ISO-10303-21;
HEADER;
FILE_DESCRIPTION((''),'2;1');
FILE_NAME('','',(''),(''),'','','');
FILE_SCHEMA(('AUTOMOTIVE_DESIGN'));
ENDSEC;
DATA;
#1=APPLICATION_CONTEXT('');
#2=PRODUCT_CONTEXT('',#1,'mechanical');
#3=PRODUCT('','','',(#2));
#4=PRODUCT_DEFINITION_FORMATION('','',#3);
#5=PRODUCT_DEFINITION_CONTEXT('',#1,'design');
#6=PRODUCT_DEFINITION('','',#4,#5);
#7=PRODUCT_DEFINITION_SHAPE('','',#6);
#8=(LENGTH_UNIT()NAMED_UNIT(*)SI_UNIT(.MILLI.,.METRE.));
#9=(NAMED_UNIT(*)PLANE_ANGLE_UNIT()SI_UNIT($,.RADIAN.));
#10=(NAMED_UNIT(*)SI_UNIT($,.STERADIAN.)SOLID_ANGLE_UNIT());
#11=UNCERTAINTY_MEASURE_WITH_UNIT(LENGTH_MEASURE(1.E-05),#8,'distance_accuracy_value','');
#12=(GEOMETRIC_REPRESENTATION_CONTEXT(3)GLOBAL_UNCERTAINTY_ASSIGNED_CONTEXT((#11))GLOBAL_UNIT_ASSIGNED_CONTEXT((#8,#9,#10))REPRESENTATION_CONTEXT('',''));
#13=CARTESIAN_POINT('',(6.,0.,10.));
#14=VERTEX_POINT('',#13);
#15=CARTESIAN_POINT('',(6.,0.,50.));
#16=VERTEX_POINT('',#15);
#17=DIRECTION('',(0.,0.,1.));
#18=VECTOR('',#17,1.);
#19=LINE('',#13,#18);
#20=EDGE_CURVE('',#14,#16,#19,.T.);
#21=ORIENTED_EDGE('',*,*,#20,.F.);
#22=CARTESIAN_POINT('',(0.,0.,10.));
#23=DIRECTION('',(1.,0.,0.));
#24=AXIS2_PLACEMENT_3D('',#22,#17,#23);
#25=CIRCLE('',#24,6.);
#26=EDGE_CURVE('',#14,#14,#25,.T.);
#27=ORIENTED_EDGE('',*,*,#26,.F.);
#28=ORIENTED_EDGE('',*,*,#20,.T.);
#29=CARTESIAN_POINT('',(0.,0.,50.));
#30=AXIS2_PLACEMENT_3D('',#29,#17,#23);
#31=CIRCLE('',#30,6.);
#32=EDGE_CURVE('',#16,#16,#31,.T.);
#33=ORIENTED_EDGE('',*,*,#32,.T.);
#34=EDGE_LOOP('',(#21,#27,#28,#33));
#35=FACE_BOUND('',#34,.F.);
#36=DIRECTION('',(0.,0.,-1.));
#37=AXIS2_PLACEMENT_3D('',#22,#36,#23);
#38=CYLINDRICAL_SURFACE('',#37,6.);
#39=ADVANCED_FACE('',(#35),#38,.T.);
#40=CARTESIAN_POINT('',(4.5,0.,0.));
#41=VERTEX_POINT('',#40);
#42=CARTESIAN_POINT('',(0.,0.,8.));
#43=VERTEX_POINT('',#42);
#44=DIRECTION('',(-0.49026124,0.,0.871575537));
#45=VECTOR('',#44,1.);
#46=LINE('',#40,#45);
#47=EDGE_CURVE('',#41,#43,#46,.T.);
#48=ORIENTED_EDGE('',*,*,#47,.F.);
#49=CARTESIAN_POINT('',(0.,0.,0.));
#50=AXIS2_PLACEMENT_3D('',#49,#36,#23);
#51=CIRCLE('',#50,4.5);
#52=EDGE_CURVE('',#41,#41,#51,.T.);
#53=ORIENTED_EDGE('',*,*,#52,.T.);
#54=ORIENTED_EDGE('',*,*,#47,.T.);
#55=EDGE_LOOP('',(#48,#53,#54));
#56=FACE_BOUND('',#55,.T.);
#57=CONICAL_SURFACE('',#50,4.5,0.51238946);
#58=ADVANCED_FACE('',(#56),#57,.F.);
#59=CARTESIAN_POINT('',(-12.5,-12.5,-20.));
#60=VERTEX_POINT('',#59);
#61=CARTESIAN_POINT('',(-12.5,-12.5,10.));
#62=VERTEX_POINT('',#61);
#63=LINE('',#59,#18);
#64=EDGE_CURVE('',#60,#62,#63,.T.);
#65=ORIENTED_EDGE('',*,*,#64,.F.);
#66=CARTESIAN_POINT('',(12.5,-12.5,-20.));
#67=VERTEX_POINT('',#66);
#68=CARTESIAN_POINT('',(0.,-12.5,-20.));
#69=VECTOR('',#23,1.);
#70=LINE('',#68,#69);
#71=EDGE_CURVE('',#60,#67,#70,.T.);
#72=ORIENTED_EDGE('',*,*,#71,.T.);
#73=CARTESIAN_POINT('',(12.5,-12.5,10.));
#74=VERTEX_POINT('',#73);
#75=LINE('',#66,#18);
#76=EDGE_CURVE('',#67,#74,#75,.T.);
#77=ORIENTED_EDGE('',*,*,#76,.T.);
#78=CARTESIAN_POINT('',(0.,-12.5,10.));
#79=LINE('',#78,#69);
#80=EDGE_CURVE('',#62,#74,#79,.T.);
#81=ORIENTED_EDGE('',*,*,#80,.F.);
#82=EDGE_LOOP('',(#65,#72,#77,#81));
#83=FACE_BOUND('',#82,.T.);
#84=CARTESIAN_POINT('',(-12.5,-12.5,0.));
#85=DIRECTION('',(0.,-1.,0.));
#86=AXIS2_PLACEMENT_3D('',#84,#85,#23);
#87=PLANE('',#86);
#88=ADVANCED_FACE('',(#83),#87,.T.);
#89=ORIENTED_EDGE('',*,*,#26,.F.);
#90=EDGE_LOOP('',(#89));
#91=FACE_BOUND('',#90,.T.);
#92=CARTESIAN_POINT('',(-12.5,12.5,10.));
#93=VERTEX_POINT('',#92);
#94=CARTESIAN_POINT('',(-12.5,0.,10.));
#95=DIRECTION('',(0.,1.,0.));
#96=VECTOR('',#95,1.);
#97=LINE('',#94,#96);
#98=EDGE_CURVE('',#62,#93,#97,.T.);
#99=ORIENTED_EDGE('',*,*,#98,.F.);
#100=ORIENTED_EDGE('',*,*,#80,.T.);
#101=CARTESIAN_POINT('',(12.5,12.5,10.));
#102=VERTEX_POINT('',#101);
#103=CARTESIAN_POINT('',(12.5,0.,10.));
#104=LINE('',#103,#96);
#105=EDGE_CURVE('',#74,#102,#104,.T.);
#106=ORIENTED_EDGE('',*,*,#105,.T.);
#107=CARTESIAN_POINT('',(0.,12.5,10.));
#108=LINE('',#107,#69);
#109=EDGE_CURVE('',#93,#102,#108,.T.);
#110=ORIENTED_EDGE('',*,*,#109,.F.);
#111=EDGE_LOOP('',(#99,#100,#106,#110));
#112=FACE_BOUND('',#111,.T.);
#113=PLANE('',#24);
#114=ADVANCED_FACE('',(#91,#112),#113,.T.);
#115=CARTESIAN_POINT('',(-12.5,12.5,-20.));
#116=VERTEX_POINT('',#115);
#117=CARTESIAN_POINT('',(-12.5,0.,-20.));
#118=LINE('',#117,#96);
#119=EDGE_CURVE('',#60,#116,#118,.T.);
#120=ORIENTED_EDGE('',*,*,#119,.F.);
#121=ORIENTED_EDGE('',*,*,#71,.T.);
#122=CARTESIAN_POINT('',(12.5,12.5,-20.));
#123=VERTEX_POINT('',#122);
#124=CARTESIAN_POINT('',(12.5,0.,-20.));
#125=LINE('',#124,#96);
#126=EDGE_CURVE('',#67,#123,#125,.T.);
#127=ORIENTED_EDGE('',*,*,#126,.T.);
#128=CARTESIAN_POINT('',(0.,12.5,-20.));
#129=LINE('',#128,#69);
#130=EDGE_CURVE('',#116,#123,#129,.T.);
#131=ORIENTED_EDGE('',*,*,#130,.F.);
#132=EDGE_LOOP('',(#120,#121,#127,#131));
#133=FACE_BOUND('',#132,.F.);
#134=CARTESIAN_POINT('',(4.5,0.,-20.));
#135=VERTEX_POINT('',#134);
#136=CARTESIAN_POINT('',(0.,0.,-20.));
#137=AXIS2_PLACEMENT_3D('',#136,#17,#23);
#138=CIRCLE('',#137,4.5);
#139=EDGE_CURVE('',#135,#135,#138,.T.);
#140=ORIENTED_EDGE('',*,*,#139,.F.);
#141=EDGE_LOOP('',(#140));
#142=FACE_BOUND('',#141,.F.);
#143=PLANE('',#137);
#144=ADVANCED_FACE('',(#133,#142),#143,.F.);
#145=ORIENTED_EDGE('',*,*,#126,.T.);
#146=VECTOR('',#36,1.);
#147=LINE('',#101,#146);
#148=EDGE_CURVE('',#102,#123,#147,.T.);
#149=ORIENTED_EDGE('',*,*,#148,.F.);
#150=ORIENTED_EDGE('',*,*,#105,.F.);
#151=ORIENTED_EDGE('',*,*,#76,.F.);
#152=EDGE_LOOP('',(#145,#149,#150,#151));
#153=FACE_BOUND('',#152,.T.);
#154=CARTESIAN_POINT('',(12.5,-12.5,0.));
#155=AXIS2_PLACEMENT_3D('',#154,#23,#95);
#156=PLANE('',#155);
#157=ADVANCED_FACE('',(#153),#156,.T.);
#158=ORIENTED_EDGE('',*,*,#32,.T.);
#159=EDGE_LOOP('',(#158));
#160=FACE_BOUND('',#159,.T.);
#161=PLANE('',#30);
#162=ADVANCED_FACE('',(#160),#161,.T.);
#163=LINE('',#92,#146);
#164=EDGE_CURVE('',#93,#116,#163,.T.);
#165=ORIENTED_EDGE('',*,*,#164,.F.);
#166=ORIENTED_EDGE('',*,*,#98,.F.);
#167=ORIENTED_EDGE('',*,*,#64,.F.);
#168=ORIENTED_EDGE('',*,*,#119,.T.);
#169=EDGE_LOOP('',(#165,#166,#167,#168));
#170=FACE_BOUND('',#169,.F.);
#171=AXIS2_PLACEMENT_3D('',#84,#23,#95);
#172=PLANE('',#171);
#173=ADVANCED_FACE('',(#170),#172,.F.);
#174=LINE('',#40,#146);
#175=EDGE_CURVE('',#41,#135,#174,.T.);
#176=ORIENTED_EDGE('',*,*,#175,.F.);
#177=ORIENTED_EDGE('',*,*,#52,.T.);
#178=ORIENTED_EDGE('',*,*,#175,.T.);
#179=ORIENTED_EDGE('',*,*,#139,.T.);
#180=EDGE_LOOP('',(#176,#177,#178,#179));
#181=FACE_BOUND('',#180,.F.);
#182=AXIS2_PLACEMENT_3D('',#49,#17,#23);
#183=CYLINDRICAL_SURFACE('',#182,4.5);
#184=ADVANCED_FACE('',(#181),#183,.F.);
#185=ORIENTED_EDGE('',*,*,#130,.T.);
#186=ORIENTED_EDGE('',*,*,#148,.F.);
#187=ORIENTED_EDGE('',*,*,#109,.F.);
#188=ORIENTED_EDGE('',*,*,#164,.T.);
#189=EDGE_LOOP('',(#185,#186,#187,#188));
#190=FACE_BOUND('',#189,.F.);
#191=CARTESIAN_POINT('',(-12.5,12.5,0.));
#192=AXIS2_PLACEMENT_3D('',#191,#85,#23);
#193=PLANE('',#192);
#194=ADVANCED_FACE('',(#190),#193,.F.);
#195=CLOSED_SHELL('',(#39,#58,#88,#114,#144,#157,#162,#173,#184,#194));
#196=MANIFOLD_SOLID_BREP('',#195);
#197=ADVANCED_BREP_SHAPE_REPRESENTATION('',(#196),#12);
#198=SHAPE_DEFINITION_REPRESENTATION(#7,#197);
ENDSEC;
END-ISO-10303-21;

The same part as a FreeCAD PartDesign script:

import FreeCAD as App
import Part
import Sketcher

V = App.Vector

doc = App.newDocument("Part")
body = doc.addObject("PartDesign::Body", "Body")

# Sketch on XY plane
sketch1 = body.newObject("Sketcher::SketchObject", "Sketch")
sketch1.AttachmentSupport = (doc.getObject("XY_Plane"), [""])
sketch1.MapMode = "FlatFace"
sketch1.addGeometry(Part.LineSegment(V(-12, 12, 0), V(-12, -12, 0)), False)
sketch1.addGeometry(Part.LineSegment(V(-12, -12, 0), V(12, -12, 0)), False)
sketch1.addGeometry(Part.LineSegment(V(12, -12, 0), V(12, 12, 0)), False)
sketch1.addGeometry(Part.LineSegment(V(12, 12, 0), V(-12, 12, 0)), False)
sketch1.addConstraint(Sketcher.Constraint("Coincident", 0, 2, 1, 1))
sketch1.addConstraint(Sketcher.Constraint("Coincident", 1, 2, 2, 1))
sketch1.addConstraint(Sketcher.Constraint("Coincident", 2, 2, 3, 1))
sketch1.addConstraint(Sketcher.Constraint("Coincident", 3, 2, 0, 1))
sketch1.addConstraint(Sketcher.Constraint("Vertical", 0))
sketch1.addConstraint(Sketcher.Constraint("Horizontal", 1))
sketch1.addConstraint(Sketcher.Constraint("Vertical", 2))
sketch1.addConstraint(Sketcher.Constraint("Horizontal", 3))
sketch1.addConstraint(Sketcher.Constraint("Symmetric", 0, 2, 2, 2, -1, 1))
sketch1.addConstraint(Sketcher.Constraint("Equal", 3, 0))
sketch1.addConstraint(Sketcher.Constraint("DistanceX", 1, 1, 1, 2, 25.0))
pad1 = body.newObject("PartDesign::Pad", "Pad")
pad1.Profile = sketch1
pad1.Length = 10

# Sketch on XZ plane
sketch2 = body.newObject("Sketcher::SketchObject", "Sketch001")
sketch2.AttachmentSupport = (doc.getObject("XZ_Plane"), [""])
sketch2.MapMode = "FlatFace"
sketch2.addGeometry(Part.LineSegment(V(4.5, 0, 0), V(0, 8, 0)), False)
sketch2.addGeometry(Part.LineSegment(V(0, 8, 0), V(0, 0, 0)), False)
sketch2.addGeometry(Part.LineSegment(V(0, 0, 0), V(4.5, 0, 0)), False)
sketch2.addConstraint(Sketcher.Constraint("Coincident", 0, 2, 1, 1))
sketch2.addConstraint(Sketcher.Constraint("Coincident", 1, 2, 2, 1))
sketch2.addConstraint(Sketcher.Constraint("Coincident", 2, 2, 0, 1))
sketch2.addConstraint(Sketcher.Constraint("Vertical", 1))
sketch2.addConstraint(Sketcher.Constraint("Horizontal", 2))
sketch2.addConstraint(Sketcher.Constraint("Coincident", 1, 2, -1, 1))
sketch2.addConstraint(Sketcher.Constraint("DistanceY", 1, 2, 1, 1, 8.0))
sketch2.addConstraint(Sketcher.Constraint("DistanceX", 2, 1, 2, 2, 4.5))
groove = body.newObject("PartDesign::Groove", "Groove")
groove.Profile = sketch2
groove.ReferenceAxis = (sketch2, ["V_Axis"])
groove.Angle = 360

# Sketch on XY plane
sketch3 = body.newObject("Sketcher::SketchObject", "Sketch002")
sketch3.AttachmentSupport = (doc.getObject("XY_Plane"), [""])
sketch3.MapMode = "FlatFace"
sketch3.addGeometry(Part.LineSegment(V(-12.5, 12.5, 0), V(-12.5, -12.5, 0)), False)
sketch3.addGeometry(Part.LineSegment(V(-12.5, -12.5, 0), V(12.5, -12.5, 0)), False)
sketch3.addGeometry(Part.LineSegment(V(12.5, -12.5, 0), V(12.5, 12.5, 0)), False)
sketch3.addGeometry(Part.LineSegment(V(12.5, 12.5, 0), V(-12.5, 12.5, 0)), False)
sketch3.addGeometry(Part.Circle(V(0, 0, 0), V(0, 0, 1), 4.5), False)
sketch3.addConstraint(Sketcher.Constraint("Coincident", 0, 2, 1, 1))
sketch3.addConstraint(Sketcher.Constraint("Coincident", 1, 2, 2, 1))
sketch3.addConstraint(Sketcher.Constraint("Coincident", 2, 2, 3, 1))
sketch3.addConstraint(Sketcher.Constraint("Coincident", 3, 2, 0, 1))
sketch3.addConstraint(Sketcher.Constraint("Vertical", 0))
sketch3.addConstraint(Sketcher.Constraint("Horizontal", 1))
sketch3.addConstraint(Sketcher.Constraint("Vertical", 2))
sketch3.addConstraint(Sketcher.Constraint("Horizontal", 3))
sketch3.addConstraint(Sketcher.Constraint("Coincident", 4, 3, -1, 1))
sketch3.addConstraint(Sketcher.Constraint("Symmetric", 0, 2, 2, 2, -1, 1))
sketch3.addConstraint(Sketcher.Constraint("Equal", 3, 0))
sketch3.addConstraint(Sketcher.Constraint("Diameter", 4, 9.0))
sketch3.addConstraint(Sketcher.Constraint("DistanceX", 1, 1, 1, 2, 25.0))
pad2 = body.newObject("PartDesign::Pad", "Pad001")
pad2.Profile = sketch3
pad2.Length = 20
pad2.Reversed = True

# Sketch on XY plane
sketch4 = body.newObject("Sketcher::SketchObject", "Sketch003")
sketch4.AttachmentSupport = (doc.getObject("XY_Plane"), [""])
sketch4.MapMode = "FlatFace"
sketch4.AttachmentOffset = App.Placement(V(0, 0, 10), App.Rotation())
sketch4.addGeometry(Part.Circle(V(0, 0, 0), V(0, 0, 1), 6), False)
sketch4.addConstraint(Sketcher.Constraint("Coincident", 0, 3, -1, 1))
sketch4.addConstraint(Sketcher.Constraint("Diameter", 0, 12.0))
pad3 = body.newObject("PartDesign::Pad", "Pad002")
pad3.Profile = sketch4
pad3.Length = 40

doc.recompute()
